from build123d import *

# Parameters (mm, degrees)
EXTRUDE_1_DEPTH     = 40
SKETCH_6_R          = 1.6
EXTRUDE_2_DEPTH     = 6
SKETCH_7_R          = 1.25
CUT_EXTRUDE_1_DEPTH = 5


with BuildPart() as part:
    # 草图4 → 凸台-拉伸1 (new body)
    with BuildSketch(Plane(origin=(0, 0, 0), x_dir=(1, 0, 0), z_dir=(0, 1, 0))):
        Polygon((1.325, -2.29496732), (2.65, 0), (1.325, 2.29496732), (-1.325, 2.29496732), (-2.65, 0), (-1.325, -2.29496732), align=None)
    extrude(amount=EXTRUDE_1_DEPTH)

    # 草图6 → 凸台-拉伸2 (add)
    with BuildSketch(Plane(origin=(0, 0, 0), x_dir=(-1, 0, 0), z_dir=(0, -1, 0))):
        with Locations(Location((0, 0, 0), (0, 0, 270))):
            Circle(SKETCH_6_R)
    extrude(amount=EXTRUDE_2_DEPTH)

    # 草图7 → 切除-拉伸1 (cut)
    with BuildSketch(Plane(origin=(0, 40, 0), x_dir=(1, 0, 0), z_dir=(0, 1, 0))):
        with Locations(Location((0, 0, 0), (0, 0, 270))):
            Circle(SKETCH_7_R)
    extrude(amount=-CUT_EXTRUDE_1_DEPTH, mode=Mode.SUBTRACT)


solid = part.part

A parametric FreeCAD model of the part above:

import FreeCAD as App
import Part
import Sketcher
from FreeCAD import Vector
Q = App.Units.Quantity

doc = App.newDocument("Part")
body = doc.addObject("PartDesign::Body", "Body")

# Sketch on XZ plane
sketch1 = body.newObject("Sketcher::SketchObject", "Sketch")
sketch1.AttachmentSupport = (doc.getObject("XZ_Plane"), [""])
sketch1.MapMode = "FlatFace"
sketch1.addGeometry(Part.LineSegment(Vector(1.3, 2.3, 0), Vector(2.6, 0, 0)), False)
sketch1.addGeometry(Part.LineSegment(Vector(2.6, 0, 0), Vector(1.3, -2.3, 0)), False)
sketch1.addGeometry(Part.LineSegment(Vector(1.3, -2.3, 0), Vector(-1.3, -2.3, 0)), False)
sketch1.addGeometry(Part.LineSegment(Vector(-1.3, -2.3, 0), Vector(-2.6, 0, 0)), False)
sketch1.addGeometry(Part.LineSegment(Vector(-2.6, 0, 0), Vector(-1.3, 2.3, 0)), False)
sketch1.addGeometry(Part.LineSegment(Vector(-1.3, 2.3, 0), Vector(1.3, 2.3, 0)), False)
sketch1.addConstraint(Sketcher.Constraint("Coincident", 0, 2, 1, 1))
sketch1.addConstraint(Sketcher.Constraint("Coincident", 1, 2, 2, 1))
sketch1.addConstraint(Sketcher.Constraint("Coincident", 2, 2, 3, 1))
sketch1.addConstraint(Sketcher.Constraint("Coincident", 3, 2, 4, 1))
sketch1.addConstraint(Sketcher.Constraint("Coincident", 4, 2, 5, 1))
sketch1.addConstraint(Sketcher.Constraint("Coincident", 5, 2, 0, 1))
sketch1.addConstraint(Sketcher.Constraint("Horizontal", 2))
sketch1.addConstraint(Sketcher.Constraint("Horizontal", 5))
sketch1.addConstraint(Sketcher.Constraint("Symmetric", 0, 2, 3, 2, -1, 1))
sketch1.addConstraint(Sketcher.Constraint("Symmetric", 1, 2, 4, 2, -1, 1))
sketch1.addConstraint(Sketcher.Constraint("PointOnObject", 0, 2, -1))
sketch1.addConstraint(Sketcher.Constraint("Parallel", 0, 3))
sketch1.addConstraint(Sketcher.Constraint("Vertical", 2, 2, 4, 2))
sketch1.addConstraint(Sketcher.Constraint("Angle", 0, Q("-60 deg")))
sketch1.addConstraint(Sketcher.Constraint("DistanceX", 2, 2, 2, 1, Q("2.65 mm")))
sketch1.addConstraint(Sketcher.Constraint("DistanceX", 3, 2, 0, 2, Q("5.3 mm")))
pad1 = body.newObject("PartDesign::Pad", "Pad")
pad1.Profile = sketch1
pad1.Length = 40
pad1.Reversed = True

# Sketch on XZ plane
sketch2 = body.newObject("Sketcher::SketchObject", "Sketch001")
sketch2.AttachmentSupport = (doc.getObject("XZ_Plane"), [""])
sketch2.MapMode = "FlatFace"
sketch2.addGeometry(Part.Circle(Vector(0, 0, 0), Vector(0, 0, 1), 1.6), False)
sketch2.addConstraint(Sketcher.Constraint("Coincident", 0, 3, -1, 1))
sketch2.addConstraint(Sketcher.Constraint("Diameter", 0, Q("3.2 mm")))
pad2 = body.newObject("PartDesign::Pad", "Pad001")
pad2.Profile = sketch2
pad2.Length = 6

# Sketch on XZ plane
sketch3 = body.newObject("Sketcher::SketchObject", "Sketch002")
sketch3.AttachmentSupport = (doc.getObject("XZ_Plane"), [""])
sketch3.MapMode = "FlatFace"
sketch3.AttachmentOffset = App.Placement(Vector(0, 0, -40), App.Rotation())
sketch3.addGeometry(Part.Circle(Vector(0, 0, 0), Vector(0, 0, 1), 1.2), False)
sketch3.addConstraint(Sketcher.Constraint("Coincident", 0, 3, -1, 1))
sketch3.addConstraint(Sketcher.Constraint("Diameter", 0, Q("2.5 mm")))
pocket1 = body.newObject("PartDesign::Pocket", "Pocket")
pocket1.Profile = sketch3
pocket1.Length = 5
pocket1.Reversed = True

doc.recompute()
